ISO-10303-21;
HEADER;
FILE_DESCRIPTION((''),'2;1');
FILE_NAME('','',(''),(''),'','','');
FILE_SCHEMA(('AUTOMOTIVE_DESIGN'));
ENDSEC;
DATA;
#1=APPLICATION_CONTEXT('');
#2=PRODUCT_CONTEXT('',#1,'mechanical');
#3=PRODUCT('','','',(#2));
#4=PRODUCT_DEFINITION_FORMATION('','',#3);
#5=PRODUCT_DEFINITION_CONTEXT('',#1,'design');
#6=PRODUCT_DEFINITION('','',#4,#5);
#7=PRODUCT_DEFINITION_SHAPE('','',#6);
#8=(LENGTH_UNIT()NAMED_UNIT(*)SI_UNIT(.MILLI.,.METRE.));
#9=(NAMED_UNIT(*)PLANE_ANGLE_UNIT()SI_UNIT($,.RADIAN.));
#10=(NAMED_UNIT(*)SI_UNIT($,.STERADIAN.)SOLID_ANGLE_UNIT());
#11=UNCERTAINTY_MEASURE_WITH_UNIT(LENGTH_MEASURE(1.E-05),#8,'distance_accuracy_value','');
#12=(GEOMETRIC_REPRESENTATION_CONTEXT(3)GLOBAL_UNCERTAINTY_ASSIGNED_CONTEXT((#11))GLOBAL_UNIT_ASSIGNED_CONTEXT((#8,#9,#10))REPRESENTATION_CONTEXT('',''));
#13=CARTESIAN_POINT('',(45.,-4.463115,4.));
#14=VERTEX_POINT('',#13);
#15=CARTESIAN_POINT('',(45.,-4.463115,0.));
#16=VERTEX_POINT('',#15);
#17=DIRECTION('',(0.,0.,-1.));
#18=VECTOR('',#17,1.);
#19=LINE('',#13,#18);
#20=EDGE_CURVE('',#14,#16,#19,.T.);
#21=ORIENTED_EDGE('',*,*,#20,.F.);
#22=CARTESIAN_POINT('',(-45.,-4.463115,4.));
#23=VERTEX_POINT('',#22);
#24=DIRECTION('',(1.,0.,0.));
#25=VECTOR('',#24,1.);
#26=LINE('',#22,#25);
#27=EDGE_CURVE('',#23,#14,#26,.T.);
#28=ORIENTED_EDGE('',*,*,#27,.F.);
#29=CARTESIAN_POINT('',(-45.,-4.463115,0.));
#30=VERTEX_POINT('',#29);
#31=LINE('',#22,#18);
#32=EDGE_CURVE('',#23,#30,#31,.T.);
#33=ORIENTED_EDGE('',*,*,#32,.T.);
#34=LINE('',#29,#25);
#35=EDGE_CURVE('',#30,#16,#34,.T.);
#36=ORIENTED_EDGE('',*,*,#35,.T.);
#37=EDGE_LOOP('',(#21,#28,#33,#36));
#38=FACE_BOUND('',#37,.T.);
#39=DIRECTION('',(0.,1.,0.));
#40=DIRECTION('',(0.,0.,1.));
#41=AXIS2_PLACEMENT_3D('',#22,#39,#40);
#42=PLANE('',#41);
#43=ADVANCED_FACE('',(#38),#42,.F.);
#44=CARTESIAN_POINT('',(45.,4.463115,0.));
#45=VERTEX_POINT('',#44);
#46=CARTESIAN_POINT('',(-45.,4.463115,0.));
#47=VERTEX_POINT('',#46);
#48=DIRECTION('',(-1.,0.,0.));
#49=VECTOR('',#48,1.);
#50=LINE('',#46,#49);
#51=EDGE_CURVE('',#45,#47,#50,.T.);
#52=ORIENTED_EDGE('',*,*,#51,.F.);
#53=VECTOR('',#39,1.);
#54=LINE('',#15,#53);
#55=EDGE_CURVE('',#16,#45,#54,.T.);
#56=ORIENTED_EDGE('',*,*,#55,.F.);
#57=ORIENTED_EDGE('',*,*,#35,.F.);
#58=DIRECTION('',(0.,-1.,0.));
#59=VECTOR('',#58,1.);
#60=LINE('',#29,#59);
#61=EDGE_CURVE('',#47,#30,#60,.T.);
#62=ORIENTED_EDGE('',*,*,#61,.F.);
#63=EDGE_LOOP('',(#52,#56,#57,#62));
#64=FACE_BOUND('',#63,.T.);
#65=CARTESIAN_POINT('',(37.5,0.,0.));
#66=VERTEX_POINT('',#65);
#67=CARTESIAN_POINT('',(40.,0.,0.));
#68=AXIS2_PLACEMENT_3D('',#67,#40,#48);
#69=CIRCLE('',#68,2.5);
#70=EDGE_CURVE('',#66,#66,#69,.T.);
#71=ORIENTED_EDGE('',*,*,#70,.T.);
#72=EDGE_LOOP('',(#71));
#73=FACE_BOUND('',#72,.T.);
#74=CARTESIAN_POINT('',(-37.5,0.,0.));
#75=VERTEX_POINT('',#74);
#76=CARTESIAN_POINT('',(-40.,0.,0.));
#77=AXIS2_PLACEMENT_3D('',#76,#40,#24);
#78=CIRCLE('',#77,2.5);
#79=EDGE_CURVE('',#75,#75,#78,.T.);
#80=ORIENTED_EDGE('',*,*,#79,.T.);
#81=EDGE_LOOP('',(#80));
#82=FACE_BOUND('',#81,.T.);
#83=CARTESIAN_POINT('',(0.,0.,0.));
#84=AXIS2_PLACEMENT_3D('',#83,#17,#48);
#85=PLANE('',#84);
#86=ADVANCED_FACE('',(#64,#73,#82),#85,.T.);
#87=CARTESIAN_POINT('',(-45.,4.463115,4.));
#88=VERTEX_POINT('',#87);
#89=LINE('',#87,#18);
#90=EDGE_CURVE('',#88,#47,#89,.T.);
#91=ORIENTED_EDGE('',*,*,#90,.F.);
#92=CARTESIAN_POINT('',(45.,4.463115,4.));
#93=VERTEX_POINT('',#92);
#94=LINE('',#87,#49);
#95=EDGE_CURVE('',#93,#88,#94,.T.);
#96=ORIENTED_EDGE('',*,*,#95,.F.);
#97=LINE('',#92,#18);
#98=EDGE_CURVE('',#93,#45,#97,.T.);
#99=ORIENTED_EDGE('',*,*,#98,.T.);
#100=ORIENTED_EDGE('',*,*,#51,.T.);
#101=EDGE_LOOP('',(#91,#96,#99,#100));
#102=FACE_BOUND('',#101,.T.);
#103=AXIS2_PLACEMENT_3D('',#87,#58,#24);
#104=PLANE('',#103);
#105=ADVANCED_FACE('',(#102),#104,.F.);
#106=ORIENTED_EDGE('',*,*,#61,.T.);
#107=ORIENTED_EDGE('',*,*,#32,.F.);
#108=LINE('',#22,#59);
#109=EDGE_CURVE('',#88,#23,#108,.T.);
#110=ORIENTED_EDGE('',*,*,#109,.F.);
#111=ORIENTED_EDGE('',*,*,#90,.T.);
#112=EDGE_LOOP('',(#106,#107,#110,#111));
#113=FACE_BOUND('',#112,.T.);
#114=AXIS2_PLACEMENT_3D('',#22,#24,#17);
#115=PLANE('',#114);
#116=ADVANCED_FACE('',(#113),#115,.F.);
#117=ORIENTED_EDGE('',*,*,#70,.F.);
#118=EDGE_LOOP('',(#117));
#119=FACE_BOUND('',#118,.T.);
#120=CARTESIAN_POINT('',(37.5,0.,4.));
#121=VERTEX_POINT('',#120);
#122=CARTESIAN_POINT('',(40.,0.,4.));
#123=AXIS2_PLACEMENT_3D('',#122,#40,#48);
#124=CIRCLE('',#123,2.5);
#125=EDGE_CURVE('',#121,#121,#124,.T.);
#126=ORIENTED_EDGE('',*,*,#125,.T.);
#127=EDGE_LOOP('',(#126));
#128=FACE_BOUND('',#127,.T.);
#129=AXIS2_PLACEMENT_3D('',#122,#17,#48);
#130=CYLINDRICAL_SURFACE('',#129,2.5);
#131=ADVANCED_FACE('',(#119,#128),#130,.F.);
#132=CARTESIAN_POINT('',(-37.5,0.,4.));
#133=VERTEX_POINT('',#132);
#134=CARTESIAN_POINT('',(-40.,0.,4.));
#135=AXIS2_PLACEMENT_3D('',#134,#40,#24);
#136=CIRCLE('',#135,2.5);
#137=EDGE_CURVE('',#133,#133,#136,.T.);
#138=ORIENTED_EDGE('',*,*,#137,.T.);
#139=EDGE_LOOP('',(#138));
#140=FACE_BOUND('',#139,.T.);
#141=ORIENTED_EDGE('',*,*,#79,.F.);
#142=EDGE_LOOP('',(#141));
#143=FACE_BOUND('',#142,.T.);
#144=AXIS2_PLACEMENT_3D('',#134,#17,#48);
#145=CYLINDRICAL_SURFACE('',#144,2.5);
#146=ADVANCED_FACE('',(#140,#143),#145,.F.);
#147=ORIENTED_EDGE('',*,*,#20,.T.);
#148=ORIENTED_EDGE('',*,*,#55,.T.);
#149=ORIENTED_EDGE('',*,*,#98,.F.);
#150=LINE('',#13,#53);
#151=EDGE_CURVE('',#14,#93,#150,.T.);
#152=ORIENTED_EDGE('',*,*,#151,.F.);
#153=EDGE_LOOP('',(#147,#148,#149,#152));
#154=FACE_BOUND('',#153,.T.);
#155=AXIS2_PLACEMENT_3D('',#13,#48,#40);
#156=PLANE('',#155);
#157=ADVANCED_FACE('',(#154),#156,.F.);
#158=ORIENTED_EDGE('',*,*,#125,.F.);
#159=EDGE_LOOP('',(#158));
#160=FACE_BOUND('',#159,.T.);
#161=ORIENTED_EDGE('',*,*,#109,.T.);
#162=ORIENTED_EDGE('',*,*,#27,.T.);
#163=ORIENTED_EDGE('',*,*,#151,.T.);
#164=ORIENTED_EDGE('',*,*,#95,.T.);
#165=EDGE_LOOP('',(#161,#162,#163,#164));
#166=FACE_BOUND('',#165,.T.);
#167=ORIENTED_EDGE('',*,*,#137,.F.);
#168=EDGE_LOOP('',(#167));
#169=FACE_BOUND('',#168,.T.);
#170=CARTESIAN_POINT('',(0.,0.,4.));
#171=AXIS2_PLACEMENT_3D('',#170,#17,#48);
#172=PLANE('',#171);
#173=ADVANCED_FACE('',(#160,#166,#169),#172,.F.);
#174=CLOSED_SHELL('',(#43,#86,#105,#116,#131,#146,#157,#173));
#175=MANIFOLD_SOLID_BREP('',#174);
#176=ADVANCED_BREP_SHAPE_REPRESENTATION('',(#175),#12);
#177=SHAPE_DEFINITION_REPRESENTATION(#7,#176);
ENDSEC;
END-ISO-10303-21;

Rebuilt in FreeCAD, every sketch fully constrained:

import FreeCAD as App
import Part
import Sketcher
from FreeCAD import Vector
Q = App.Units.Quantity


def add_polygon(sketch, points):
    """Adds a closed chain of lines whose ends are joined by coincident constraints."""
    first, n = sketch.GeometryCount, len(points)
    for a, b in zip(points, points[1:] + points[:1]):
        sketch.addGeometry(Part.LineSegment(App.Vector(*a, 0), App.Vector(*b, 0)), False)
    for i in range(n):
        sketch.addConstraint(Sketcher.Constraint("Coincident", first + i, 2, first + (i + 1) % n, 1))

doc = App.newDocument("Part")
body = doc.addObject("PartDesign::Body", "Body")

sketch1 = doc.addObject("Sketcher::SketchObject", "Sketch")
body.addObject(sketch1)
sketch1.AttachmentSupport = (doc.XY_Plane, [""])
sketch1.MapMode = "FlatFace"
add_polygon(sketch1, [(-45, 4.5), (-45, -4.5), (45, -4.5), (45, 4.5)])
sketch1.addGeometry(Part.Circle(Vector(-40, 0, 0), Vector(0, 0, 1), 2.5), False)
sketch1.addGeometry(Part.Circle(Vector(40, 0, 0), Vector(0, 0, 1), 2.5), False)
sketch1.addConstraint([
    Sketcher.Constraint("Vertical", 0),
    Sketcher.Constraint("Horizontal", 1),
    Sketcher.Constraint("Vertical", 2),
    Sketcher.Constraint("Horizontal", 3),
    Sketcher.Constraint("Equal", 4, 5),
    Sketcher.Constraint("Symmetric", 4, 3, 5, 3, -1, 1),
    Sketcher.Constraint("Symmetric", 0, 2, 2, 2, -1, 1),
    Sketcher.Constraint("PointOnObject", 4, 3, -1),
    Sketcher.Constraint("Diameter", 4, Q("5 mm")),
    Sketcher.Constraint("DistanceX", 1, 1, 1, 2, Q("90 mm")),
    Sketcher.Constraint("DistanceX", 4, 3, -1, 1, Q("40 mm")),
    Sketcher.Constraint("DistanceY", 0, 2, 0, 1, Q("8.92623 mm")),
])
pad1 = doc.addObject("PartDesign::Pad", "Pad")
body.addObject(pad1)
pad1.Profile = sketch1
pad1.Length = 4

doc.recompute()
